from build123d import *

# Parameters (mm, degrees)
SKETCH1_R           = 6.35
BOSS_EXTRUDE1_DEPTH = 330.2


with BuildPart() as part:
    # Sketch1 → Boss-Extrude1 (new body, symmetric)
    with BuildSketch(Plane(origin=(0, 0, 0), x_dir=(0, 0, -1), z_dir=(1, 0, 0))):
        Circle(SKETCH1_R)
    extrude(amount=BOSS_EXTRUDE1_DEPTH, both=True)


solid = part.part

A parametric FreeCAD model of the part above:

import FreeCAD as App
import Part
import Sketcher
Q = App.Units.Quantity

doc = App.newDocument("Part")
body = doc.addObject("PartDesign::Body", "Body")

sketch1 = doc.addObject("Sketcher::SketchObject", "Sketch")
body.addObject(sketch1)
sketch1.AttachmentSupport = (doc.YZ_Plane, [""])
sketch1.MapMode = "FlatFace"
sketch1.addGeometry(Part.Circle(App.Vector(0, 0, 0), App.Vector(0, 0, 1), 6), False)
sketch1.addConstraint([
    Sketcher.Constraint("Coincident", 0, 3, -1, 1),
    Sketcher.Constraint("Diameter", 0, Q("0.5 in")),
])
pad1 = doc.addObject("PartDesign::Pad", "Pad")
body.addObject(pad1)
pad1.Profile = sketch1
pad1.Length = Q("26 in")
pad1.Midplane = True

doc.recompute()
